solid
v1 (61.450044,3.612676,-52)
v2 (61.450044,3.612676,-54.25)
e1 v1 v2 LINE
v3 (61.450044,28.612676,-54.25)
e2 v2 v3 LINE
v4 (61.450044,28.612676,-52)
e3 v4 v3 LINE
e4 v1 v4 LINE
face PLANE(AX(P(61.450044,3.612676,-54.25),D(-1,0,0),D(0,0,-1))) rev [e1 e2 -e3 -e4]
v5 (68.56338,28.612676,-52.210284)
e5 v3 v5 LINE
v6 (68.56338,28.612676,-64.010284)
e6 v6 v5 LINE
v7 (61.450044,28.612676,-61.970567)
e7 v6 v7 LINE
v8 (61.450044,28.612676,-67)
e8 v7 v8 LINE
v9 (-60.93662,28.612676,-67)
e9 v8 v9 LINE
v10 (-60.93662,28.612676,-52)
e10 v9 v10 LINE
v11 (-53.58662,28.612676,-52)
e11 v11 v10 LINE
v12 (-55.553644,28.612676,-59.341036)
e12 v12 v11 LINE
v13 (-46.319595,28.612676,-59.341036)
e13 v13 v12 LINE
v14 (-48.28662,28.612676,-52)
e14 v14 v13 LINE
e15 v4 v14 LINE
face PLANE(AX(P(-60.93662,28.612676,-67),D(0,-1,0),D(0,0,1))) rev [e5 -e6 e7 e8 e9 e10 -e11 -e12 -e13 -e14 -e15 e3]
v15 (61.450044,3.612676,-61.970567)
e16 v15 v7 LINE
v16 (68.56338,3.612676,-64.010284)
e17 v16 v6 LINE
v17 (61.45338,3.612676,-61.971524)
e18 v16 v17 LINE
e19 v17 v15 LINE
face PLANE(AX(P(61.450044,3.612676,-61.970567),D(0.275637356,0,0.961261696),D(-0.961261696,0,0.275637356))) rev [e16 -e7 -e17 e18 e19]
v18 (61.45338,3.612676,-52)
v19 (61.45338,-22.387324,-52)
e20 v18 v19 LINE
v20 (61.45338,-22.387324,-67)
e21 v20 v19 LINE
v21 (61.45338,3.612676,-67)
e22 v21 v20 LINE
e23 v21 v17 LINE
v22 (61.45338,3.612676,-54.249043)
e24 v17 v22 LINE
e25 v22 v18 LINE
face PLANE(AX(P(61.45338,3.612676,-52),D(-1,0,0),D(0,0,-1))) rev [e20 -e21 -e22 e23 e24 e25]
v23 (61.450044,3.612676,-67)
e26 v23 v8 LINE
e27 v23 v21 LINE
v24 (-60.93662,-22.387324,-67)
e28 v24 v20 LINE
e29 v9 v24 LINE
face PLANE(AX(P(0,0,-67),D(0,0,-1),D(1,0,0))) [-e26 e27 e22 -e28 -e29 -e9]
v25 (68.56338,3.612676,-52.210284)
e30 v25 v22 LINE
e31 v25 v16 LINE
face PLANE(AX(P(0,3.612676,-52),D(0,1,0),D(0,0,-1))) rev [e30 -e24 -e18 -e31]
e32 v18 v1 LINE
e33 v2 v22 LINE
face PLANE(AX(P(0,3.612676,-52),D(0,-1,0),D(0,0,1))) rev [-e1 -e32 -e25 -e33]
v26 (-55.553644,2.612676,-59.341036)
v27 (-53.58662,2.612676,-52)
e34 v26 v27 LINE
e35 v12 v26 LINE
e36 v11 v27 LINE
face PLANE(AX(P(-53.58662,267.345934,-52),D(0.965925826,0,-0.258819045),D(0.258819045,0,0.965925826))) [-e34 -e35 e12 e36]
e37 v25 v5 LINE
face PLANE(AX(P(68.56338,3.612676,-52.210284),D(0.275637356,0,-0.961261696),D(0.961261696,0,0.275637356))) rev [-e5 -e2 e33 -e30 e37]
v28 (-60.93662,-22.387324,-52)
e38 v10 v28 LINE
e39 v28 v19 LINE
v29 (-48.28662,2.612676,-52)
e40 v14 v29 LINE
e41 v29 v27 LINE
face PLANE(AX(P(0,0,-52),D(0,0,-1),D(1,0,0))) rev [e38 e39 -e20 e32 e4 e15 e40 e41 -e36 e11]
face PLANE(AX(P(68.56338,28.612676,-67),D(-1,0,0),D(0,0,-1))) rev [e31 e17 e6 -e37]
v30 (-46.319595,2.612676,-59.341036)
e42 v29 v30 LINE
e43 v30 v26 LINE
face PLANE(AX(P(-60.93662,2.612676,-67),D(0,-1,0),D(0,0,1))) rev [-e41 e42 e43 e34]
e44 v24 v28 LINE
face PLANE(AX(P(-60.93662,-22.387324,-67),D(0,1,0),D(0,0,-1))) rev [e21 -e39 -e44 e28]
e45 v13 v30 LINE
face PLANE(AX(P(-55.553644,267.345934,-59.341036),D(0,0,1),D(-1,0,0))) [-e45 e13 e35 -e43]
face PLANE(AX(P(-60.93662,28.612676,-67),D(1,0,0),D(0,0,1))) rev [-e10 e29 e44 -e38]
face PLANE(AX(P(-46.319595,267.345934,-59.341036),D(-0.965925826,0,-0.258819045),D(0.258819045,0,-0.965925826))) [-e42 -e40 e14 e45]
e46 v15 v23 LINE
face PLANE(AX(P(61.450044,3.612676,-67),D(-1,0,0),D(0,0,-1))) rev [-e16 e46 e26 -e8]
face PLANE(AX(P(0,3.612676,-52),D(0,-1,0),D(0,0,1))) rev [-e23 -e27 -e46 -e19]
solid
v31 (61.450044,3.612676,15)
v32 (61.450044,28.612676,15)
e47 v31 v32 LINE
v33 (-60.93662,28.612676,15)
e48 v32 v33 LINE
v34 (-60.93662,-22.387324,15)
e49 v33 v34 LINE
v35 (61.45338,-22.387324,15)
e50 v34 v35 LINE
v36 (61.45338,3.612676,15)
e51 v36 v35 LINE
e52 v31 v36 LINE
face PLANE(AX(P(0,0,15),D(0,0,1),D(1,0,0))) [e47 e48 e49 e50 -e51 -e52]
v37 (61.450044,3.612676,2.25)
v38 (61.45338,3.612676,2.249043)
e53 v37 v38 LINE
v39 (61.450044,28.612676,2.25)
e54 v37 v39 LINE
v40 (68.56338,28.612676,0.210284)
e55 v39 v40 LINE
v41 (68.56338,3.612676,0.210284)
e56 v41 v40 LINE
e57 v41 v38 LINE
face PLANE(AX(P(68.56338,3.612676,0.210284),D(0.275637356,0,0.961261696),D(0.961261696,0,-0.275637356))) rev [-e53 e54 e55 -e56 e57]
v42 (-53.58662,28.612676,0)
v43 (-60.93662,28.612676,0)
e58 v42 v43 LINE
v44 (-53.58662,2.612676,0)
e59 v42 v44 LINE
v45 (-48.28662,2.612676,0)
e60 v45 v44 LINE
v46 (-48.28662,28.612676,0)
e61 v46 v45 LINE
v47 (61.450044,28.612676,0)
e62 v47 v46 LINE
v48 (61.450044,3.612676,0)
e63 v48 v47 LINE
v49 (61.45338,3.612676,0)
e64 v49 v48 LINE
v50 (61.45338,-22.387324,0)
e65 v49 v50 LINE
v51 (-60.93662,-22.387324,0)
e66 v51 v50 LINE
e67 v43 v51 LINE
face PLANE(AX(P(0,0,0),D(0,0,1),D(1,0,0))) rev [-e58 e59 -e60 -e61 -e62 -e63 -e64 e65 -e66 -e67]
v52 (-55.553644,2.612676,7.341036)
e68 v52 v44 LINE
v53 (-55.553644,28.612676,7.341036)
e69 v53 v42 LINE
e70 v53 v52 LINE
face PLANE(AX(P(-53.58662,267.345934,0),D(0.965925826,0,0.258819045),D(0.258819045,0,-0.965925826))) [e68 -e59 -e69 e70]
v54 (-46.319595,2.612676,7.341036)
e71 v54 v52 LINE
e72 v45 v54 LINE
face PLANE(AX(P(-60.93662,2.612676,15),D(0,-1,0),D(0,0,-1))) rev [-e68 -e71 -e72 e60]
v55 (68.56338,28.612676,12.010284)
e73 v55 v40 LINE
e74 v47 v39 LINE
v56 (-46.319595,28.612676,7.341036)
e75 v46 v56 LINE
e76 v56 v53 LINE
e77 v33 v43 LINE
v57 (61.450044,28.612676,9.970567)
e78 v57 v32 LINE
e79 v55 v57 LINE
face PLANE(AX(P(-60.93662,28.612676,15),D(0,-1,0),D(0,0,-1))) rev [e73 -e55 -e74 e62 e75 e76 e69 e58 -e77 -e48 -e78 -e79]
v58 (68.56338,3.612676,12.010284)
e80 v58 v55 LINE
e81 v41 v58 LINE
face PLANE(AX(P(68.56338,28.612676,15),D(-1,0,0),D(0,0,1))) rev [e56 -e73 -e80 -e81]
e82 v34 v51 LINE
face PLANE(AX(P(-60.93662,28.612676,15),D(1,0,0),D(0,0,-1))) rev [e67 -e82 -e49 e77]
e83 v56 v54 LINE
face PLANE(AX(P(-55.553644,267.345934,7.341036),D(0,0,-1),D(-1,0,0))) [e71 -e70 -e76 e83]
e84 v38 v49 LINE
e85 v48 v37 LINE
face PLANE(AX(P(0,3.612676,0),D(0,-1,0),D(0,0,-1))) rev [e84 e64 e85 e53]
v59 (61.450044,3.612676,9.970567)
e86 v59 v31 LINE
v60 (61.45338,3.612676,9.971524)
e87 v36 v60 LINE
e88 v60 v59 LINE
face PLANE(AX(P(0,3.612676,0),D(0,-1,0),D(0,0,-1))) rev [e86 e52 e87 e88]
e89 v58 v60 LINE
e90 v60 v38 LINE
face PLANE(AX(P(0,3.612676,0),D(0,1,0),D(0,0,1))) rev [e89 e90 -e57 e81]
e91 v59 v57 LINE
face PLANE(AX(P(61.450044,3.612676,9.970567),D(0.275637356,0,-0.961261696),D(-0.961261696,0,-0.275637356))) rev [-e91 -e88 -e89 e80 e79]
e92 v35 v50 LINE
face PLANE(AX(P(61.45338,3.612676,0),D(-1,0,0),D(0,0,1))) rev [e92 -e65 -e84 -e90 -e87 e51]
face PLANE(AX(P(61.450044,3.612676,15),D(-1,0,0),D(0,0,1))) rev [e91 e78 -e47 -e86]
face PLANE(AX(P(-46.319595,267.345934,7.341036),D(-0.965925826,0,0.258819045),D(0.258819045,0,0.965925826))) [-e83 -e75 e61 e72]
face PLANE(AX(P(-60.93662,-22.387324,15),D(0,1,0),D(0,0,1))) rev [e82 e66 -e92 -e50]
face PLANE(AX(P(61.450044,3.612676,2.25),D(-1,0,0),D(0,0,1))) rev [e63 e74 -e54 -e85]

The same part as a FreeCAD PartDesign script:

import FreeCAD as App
import Part
import Sketcher

V = App.Vector
Q = App.Units.Quantity

doc = App.newDocument("Part")
params = doc.addObject("Spreadsheet::Sheet", "Params")
for row, (alias, value) in enumerate([
    ("sketch1_height", "51 mm"),
    ("sketch1_width", "129.5 mm"),
    ("pad1_length", "15 mm"),
    ("sketch2_length", "7.6 mm"),
    ("pocket1_length", "1 mm"),
    ("pocket1_length2", "26 mm"),
    ("sketch3_length", "7.4 mm"),
    ("sketch3_height", "2.25 mm"),
    ("pocket2_length", "25 mm"),
    ("sketch4_height", "15 mm"),
    ("sketch4_width", "7.11 mm"),
    ("pocket3_length", "26 mm"),
], start=1):
    params.set(f"A{row}", alias)
    params.set(f"B{row}", "=" + value)
    params.setAlias(f"B{row}", alias)

body = doc.addObject("PartDesign::Body", "Body")

# Sketch on XY plane
sketch1 = doc.addObject("Sketcher::SketchObject", "Sketch")
body.addObject(sketch1)
sketch1.AttachmentSupport = (doc.XY_Plane, [""])
sketch1.MapMode = "FlatFace"
sketch1.addGeometry([
    Part.LineSegment(V(-61, 29, 0), V(-61, -22, 0)),
    Part.LineSegment(V(-61, -22, 0), V(69, -22, 0)),
    Part.LineSegment(V(69, -22, 0), V(69, 29, 0)),
    Part.LineSegment(V(69, 29, 0), V(-61, 29, 0)),
], False)
sketch1.addConstraint([
    Sketcher.Constraint("Coincident", 0, 2, 1, 1),
    Sketcher.Constraint("Coincident", 1, 2, 2, 1),
    Sketcher.Constraint("Coincident", 2, 2, 3, 1),
    Sketcher.Constraint("Coincident", 3, 2, 0, 1),
    Sketcher.Constraint("Vertical", 0),
    Sketcher.Constraint("Horizontal", 1),
    Sketcher.Constraint("Vertical", 2),
    Sketcher.Constraint("Horizontal", 3),
    Sketcher.Constraint("DistanceY", 0, 2, 0, 1, Q("51 mm")),
    Sketcher.Constraint("DistanceX", 1, 1, 1, 2, Q("129.5 mm")),
    Sketcher.Constraint("DistanceX", 0, 2, -1, 1, Q("60.93662 mm")),
    Sketcher.Constraint("DistanceY", 0, 2, -1, 1, Q("22.387324 mm")),
])
sketch1.setExpression("Constraints[8]", "Params.sketch1_height")
sketch1.setExpression("Constraints[9]", "Params.sketch1_width")
pad1 = doc.addObject("PartDesign::Pad", "Pad")
body.addObject(pad1)
pad1.Profile = sketch1
pad1.setExpression("Length", "Params.pad1_length")

# Sketch on XZ plane
sketch2 = doc.addObject("Sketcher::SketchObject", "Sketch001")
body.addObject(sketch2)
sketch2.AttachmentSupport = (doc.XZ_Plane, [""])
sketch2.MapMode = "FlatFace"
sketch2.AttachmentOffset = App.Placement(V(0, 0, -28.612676), App.Rotation())
sketch2.addGeometry([
    Part.LineSegment(V(-332, 0, 0), V(-54, 0, 0)),  # 0
    Part.LineSegment(V(-54, 0, 0), V(-56, 7, 0)),  # 1
    Part.LineSegment(V(-56, 7, 0), V(-46, 7, 0)),  # 2
    Part.LineSegment(V(-46, 7, 0), V(-48, 0, 0)),  # 3
    Part.LineSegment(V(-48, 0, 0), V(-118, -262, 0)),  # 4
    Part.LineSegment(V(-118, -262, 0), V(-538, -604, 0)),  # 5
    Part.LineSegment(V(-538, -604, 0), V(-751, -342, 0)),  # 6
    Part.LineSegment(V(-751, -342, 0), V(-332, 0, 0)),  # 7
], False)
sketch2.addConstraint([
    Sketcher.Constraint("Coincident", 0, 2, 1, 1),
    Sketcher.Constraint("Coincident", 1, 2, 2, 1),
    Sketcher.Constraint("Coincident", 2, 2, 3, 1),
    Sketcher.Constraint("Coincident", 3, 2, 4, 1),
    Sketcher.Constraint("Coincident", 4, 2, 5, 1),
    Sketcher.Constraint("Coincident", 5, 2, 6, 1),
    Sketcher.Constraint("Coincident", 6, 2, 7, 1),
    Sketcher.Constraint("Coincident", 7, 2, 0, 1),
    Sketcher.Constraint("Horizontal", 0),
    Sketcher.Constraint("Horizontal", 2),
    Sketcher.Constraint("PointOnObject", 0, 2, -1),
    Sketcher.Constraint("PointOnObject", 3, 2, -1),
    Sketcher.Constraint("Parallel", 3, 4),
    Sketcher.Constraint("Perpendicular", 5, 6),
    Sketcher.Constraint("Perpendicular", 6, 7),
    Sketcher.Constraint("Equal", 1, 3),
    Sketcher.Constraint("Equal", 5, 7),
    Sketcher.Constraint("Angle", 1, Q("105 deg")),
    Sketcher.Constraint("Distance", 1, Q("7.6 mm")),
    Sketcher.Constraint("DistanceX", 0, 2, 3, 2, Q("5.3 mm")),
    Sketcher.Constraint("Distance", 6, Q("337.47208 mm")),
    Sketcher.Constraint("DistanceX", 0, 1, 0, 2, Q("278.081663 mm")),
    Sketcher.Constraint("DistanceX", 0, 2, -1, 1, Q("53.58662 mm")),
    Sketcher.Constraint("DistanceX", 5, 2, 1, 2, Q("482.38276 mm")),
])
sketch2.setExpression("Constraints[18]", "Params.sketch2_length")
pocket1 = doc.addObject("PartDesign::Pocket", "Pocket")
body.addObject(pocket1)
pocket1.Profile = sketch2
pocket1.Type = "TwoLengths"
pocket1.setExpression("Length", "Params.pocket1_length")
pocket1.setExpression("Length2", "Params.pocket1_length2")

# Sketch on XZ plane
sketch3 = doc.addObject("Sketcher::SketchObject", "Sketch002")
body.addObject(sketch3)
sketch3.AttachmentSupport = (doc.XZ_Plane, [""])
sketch3.MapMode = "FlatFace"
sketch3.AttachmentOffset = App.Placement(V(0, 0, -28.612676), App.Rotation())
sketch3.addGeometry([
    Part.LineSegment(V(68.56, 0, 0), V(61.45, 0, 0)),  # 0
    Part.LineSegment(V(61.45, 0, 0), V(61.45, 2.25, 0)),  # 1
    Part.LineSegment(V(61.45, 2.25, 0), V(68.56, 0.21, 0)),  # 2
    Part.LineSegment(V(68.56, 0.21, 0), V(68.56, 0, 0)),  # 3
    Part.LineSegment(V(61.45, 9.97, 0), V(61.45, 15, 0)),  # 4
    Part.LineSegment(V(61.45, 15, 0), V(68.56, 15, 0)),  # 5
    Part.LineSegment(V(68.56, 15, 0), V(68.56, 12.01, 0)),  # 6
    Part.LineSegment(V(68.56, 12.01, 0), V(61.45, 9.97, 0)),  # 7
], False)
sketch3.addConstraint([
    Sketcher.Constraint("Coincident", 0, 2, 1, 1),
    Sketcher.Constraint("Coincident", 1, 2, 2, 1),
    Sketcher.Constraint("Coincident", 2, 2, 3, 1),
    Sketcher.Constraint("Coincident", 3, 2, 0, 1),
    Sketcher.Constraint("Coincident", 4, 2, 5, 1),
    Sketcher.Constraint("Coincident", 5, 2, 6, 1),
    Sketcher.Constraint("Coincident", 6, 2, 7, 1),
    Sketcher.Constraint("Coincident", 7, 2, 4, 1),
    Sketcher.Constraint("Horizontal", 0),
    Sketcher.Constraint("Vertical", 1),
    Sketcher.Constraint("Vertical", 3),
    Sketcher.Constraint("Vertical", 4),
    Sketcher.Constraint("Horizontal", 5),
    Sketcher.Constraint("Vertical", 6),
    Sketcher.Constraint("PointOnObject", 0, 2, -1),
    Sketcher.Constraint("Vertical", 1, 2, 4, 2),
    Sketcher.Constraint("Vertical", 3, 2, 5, 2),
    Sketcher.Constraint("Equal", 2, 7),
    Sketcher.Constraint("Angle", 2, Q("-16 deg")),
    Sketcher.Constraint("DistanceY", -1, 1, 4, 2, Q("15 mm")),
    Sketcher.Constraint("Distance", 2, Q("7.4 mm")),
    Sketcher.Constraint("DistanceY", 1, 1, 1, 2, Q("2.25 mm")),
    Sketcher.Constraint("DistanceY", 2, 2, 6, 2, Q("11.8 mm")),
    Sketcher.Constraint("DistanceX", -1, 1, 2, 2, Q("68.56338 mm")),
])
sketch3.setExpression("Constraints[20]", "Params.sketch3_length")
sketch3.setExpression("Constraints[21]", "Params.sketch3_height")
pocket2 = doc.addObject("PartDesign::Pocket", "Pocket001")
body.addObject(pocket2)
pocket2.Profile = sketch3
pocket2.setExpression("Length", "Params.pocket2_length")
pocket2.Reversed = True

# Sketch on XZ plane
sketch4 = doc.addObject("Sketcher::SketchObject", "Sketch003")
body.addObject(sketch4)
sketch4.AttachmentSupport = (doc.XZ_Plane, [""])
sketch4.MapMode = "FlatFace"
sketch4.AttachmentOffset = App.Placement(V(0, 0, 22.387324), App.Rotation())
sketch4.addGeometry([
    Part.LineSegment(V(61, 15, 0), V(61, 0, 0)),
    Part.LineSegment(V(61, 0, 0), V(69, 0, 0)),
    Part.LineSegment(V(69, 0, 0), V(69, 15, 0)),
    Part.LineSegment(V(69, 15, 0), V(61, 15, 0)),
], False)
sketch4.addConstraint([
    Sketcher.Constraint("Coincident", 0, 2, 1, 1),
    Sketcher.Constraint("Coincident", 1, 2, 2, 1),
    Sketcher.Constraint("Coincident", 2, 2, 3, 1),
    Sketcher.Constraint("Coincident", 3, 2, 0, 1),
    Sketcher.Constraint("Vertical", 0),
    Sketcher.Constraint("Horizontal", 1),
    Sketcher.Constraint("Vertical", 2),
    Sketcher.Constraint("Horizontal", 3),
    Sketcher.Constraint("PointOnObject", 0, 2, -1),
    Sketcher.Constraint("DistanceY", 0, 2, 0, 1, Q("15 mm")),
    Sketcher.Constraint("DistanceX", 1, 1, 1, 2, Q("7.11 mm")),
    Sketcher.Constraint("DistanceX", -1, 1, 0, 2, Q("61.45338 mm")),
])
sketch4.setExpression("Constraints[9]", "Params.sketch4_height")
sketch4.setExpression("Constraints[10]", "Params.sketch4_width")
pocket3 = doc.addObject("PartDesign::Pocket", "Pocket002")
body.addObject(pocket3)
pocket3.Profile = sketch4
pocket3.setExpression("Length", "Params.pocket3_length")
body2 = doc.addObject("PartDesign::Body", "Body001")
doc.recompute()

mirroring = doc.addObject("Part::Mirroring", "Mirroring")
mirroring.Source = body
mirroring.Base = V(0, 0, -26)
mirroring.Normal = V(0, 0, -1)
body2.BaseFeature = mirroring
doc.recompute()
mirroring.Visibility = False

doc.recompute()
